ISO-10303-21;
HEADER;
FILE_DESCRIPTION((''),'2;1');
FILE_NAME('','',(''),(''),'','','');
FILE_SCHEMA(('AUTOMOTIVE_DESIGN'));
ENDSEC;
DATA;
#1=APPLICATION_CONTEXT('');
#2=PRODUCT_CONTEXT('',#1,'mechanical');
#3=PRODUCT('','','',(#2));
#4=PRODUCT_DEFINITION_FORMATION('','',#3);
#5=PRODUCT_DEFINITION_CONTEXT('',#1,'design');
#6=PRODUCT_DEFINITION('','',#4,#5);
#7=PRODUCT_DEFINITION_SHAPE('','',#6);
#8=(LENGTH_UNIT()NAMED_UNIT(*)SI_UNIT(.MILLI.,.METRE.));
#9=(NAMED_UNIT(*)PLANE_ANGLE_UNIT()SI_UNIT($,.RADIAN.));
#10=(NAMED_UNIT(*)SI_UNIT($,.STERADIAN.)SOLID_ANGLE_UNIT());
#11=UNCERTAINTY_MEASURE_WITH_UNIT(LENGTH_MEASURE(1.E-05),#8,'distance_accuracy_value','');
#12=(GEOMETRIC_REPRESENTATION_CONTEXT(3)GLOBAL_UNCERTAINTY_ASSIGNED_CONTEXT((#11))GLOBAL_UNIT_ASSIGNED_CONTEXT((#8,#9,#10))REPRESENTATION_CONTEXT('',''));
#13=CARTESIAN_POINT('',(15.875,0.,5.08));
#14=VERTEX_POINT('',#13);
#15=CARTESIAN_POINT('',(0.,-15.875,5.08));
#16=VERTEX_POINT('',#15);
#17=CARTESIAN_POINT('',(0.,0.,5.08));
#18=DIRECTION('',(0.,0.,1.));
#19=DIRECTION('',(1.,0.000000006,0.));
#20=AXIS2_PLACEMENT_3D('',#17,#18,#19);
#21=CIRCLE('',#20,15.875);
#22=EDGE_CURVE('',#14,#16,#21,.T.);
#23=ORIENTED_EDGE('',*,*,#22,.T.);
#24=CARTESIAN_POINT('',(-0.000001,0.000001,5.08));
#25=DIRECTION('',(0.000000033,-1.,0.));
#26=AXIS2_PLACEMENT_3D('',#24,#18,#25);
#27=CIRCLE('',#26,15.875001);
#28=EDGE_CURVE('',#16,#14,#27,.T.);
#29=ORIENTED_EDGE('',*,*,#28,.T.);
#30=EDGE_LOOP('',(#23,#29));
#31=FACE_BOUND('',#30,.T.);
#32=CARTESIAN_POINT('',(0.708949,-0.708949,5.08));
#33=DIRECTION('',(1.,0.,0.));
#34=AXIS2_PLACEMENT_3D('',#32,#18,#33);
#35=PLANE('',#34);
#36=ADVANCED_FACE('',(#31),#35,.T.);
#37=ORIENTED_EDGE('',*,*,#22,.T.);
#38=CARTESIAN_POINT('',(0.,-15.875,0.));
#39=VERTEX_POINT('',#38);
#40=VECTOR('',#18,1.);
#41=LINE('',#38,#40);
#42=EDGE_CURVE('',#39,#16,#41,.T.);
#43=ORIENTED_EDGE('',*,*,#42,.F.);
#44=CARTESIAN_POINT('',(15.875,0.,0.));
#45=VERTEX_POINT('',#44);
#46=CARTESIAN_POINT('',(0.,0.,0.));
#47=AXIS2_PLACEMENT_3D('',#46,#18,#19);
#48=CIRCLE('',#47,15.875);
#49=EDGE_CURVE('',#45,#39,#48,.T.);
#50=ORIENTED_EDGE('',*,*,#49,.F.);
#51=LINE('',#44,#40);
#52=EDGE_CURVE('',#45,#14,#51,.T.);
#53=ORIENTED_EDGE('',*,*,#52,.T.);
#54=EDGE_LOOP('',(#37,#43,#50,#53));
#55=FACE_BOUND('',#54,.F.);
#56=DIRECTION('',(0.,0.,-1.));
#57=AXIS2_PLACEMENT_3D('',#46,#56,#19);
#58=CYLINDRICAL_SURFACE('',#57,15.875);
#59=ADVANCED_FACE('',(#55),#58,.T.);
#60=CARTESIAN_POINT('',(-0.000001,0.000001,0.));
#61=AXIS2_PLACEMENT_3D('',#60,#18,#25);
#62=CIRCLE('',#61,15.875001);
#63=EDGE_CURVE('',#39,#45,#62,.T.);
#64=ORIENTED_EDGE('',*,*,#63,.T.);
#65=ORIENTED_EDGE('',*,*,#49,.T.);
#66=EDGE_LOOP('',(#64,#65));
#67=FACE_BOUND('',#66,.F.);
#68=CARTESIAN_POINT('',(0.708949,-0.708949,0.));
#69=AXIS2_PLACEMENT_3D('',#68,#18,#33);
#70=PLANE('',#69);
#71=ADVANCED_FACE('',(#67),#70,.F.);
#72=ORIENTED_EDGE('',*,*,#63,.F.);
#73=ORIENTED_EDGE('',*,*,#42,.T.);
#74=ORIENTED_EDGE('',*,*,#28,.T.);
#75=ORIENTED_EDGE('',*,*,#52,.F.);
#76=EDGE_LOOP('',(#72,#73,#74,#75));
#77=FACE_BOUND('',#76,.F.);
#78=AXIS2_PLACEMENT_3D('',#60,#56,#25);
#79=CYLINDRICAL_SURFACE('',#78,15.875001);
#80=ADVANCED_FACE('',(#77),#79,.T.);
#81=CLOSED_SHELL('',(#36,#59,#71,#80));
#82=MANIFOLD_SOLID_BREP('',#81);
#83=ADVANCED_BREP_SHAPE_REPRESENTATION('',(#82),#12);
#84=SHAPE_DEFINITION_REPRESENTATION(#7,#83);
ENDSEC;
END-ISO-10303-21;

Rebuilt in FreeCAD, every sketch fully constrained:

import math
import FreeCAD as App
import Part
import Sketcher
Q = App.Units.Quantity

doc = App.newDocument("Part")
body = doc.addObject("PartDesign::Body", "Body")

sketch1 = body.newObject("Sketcher::SketchObject", "Sketch")
sketch1.AttachmentSupport = (doc.getObject("XY_Plane"), [""])
sketch1.MapMode = "FlatFace"
sketch1.addGeometry([
    Part.ArcOfCircle(Part.Circle(App.Vector(0, 0, 0), App.Vector(0, 0, 1), 16), math.radians(-90), math.radians(0)),
    Part.ArcOfCircle(Part.Circle(App.Vector(0, 0, 0), App.Vector(0, 0, 1), 16), math.radians(0), math.radians(270)),
], False)
sketch1.addConstraint([
    Sketcher.Constraint("Tangent", 0, 1, 1, 2),
    Sketcher.Constraint("Coincident", 1, 1, 0, 2),
    Sketcher.Constraint("Coincident", 0, 3, -1, 1),
    Sketcher.Constraint("PointOnObject", 0, 1, -2),
    Sketcher.Constraint("PointOnObject", 1, 1, -1),
    Sketcher.Constraint("Radius", 0, Q("0.625 in")),
])
pad1 = body.newObject("PartDesign::Pad", "Pad")
pad1.Profile = sketch1
pad1.Length = Q("0.2 in")

doc.recompute()
